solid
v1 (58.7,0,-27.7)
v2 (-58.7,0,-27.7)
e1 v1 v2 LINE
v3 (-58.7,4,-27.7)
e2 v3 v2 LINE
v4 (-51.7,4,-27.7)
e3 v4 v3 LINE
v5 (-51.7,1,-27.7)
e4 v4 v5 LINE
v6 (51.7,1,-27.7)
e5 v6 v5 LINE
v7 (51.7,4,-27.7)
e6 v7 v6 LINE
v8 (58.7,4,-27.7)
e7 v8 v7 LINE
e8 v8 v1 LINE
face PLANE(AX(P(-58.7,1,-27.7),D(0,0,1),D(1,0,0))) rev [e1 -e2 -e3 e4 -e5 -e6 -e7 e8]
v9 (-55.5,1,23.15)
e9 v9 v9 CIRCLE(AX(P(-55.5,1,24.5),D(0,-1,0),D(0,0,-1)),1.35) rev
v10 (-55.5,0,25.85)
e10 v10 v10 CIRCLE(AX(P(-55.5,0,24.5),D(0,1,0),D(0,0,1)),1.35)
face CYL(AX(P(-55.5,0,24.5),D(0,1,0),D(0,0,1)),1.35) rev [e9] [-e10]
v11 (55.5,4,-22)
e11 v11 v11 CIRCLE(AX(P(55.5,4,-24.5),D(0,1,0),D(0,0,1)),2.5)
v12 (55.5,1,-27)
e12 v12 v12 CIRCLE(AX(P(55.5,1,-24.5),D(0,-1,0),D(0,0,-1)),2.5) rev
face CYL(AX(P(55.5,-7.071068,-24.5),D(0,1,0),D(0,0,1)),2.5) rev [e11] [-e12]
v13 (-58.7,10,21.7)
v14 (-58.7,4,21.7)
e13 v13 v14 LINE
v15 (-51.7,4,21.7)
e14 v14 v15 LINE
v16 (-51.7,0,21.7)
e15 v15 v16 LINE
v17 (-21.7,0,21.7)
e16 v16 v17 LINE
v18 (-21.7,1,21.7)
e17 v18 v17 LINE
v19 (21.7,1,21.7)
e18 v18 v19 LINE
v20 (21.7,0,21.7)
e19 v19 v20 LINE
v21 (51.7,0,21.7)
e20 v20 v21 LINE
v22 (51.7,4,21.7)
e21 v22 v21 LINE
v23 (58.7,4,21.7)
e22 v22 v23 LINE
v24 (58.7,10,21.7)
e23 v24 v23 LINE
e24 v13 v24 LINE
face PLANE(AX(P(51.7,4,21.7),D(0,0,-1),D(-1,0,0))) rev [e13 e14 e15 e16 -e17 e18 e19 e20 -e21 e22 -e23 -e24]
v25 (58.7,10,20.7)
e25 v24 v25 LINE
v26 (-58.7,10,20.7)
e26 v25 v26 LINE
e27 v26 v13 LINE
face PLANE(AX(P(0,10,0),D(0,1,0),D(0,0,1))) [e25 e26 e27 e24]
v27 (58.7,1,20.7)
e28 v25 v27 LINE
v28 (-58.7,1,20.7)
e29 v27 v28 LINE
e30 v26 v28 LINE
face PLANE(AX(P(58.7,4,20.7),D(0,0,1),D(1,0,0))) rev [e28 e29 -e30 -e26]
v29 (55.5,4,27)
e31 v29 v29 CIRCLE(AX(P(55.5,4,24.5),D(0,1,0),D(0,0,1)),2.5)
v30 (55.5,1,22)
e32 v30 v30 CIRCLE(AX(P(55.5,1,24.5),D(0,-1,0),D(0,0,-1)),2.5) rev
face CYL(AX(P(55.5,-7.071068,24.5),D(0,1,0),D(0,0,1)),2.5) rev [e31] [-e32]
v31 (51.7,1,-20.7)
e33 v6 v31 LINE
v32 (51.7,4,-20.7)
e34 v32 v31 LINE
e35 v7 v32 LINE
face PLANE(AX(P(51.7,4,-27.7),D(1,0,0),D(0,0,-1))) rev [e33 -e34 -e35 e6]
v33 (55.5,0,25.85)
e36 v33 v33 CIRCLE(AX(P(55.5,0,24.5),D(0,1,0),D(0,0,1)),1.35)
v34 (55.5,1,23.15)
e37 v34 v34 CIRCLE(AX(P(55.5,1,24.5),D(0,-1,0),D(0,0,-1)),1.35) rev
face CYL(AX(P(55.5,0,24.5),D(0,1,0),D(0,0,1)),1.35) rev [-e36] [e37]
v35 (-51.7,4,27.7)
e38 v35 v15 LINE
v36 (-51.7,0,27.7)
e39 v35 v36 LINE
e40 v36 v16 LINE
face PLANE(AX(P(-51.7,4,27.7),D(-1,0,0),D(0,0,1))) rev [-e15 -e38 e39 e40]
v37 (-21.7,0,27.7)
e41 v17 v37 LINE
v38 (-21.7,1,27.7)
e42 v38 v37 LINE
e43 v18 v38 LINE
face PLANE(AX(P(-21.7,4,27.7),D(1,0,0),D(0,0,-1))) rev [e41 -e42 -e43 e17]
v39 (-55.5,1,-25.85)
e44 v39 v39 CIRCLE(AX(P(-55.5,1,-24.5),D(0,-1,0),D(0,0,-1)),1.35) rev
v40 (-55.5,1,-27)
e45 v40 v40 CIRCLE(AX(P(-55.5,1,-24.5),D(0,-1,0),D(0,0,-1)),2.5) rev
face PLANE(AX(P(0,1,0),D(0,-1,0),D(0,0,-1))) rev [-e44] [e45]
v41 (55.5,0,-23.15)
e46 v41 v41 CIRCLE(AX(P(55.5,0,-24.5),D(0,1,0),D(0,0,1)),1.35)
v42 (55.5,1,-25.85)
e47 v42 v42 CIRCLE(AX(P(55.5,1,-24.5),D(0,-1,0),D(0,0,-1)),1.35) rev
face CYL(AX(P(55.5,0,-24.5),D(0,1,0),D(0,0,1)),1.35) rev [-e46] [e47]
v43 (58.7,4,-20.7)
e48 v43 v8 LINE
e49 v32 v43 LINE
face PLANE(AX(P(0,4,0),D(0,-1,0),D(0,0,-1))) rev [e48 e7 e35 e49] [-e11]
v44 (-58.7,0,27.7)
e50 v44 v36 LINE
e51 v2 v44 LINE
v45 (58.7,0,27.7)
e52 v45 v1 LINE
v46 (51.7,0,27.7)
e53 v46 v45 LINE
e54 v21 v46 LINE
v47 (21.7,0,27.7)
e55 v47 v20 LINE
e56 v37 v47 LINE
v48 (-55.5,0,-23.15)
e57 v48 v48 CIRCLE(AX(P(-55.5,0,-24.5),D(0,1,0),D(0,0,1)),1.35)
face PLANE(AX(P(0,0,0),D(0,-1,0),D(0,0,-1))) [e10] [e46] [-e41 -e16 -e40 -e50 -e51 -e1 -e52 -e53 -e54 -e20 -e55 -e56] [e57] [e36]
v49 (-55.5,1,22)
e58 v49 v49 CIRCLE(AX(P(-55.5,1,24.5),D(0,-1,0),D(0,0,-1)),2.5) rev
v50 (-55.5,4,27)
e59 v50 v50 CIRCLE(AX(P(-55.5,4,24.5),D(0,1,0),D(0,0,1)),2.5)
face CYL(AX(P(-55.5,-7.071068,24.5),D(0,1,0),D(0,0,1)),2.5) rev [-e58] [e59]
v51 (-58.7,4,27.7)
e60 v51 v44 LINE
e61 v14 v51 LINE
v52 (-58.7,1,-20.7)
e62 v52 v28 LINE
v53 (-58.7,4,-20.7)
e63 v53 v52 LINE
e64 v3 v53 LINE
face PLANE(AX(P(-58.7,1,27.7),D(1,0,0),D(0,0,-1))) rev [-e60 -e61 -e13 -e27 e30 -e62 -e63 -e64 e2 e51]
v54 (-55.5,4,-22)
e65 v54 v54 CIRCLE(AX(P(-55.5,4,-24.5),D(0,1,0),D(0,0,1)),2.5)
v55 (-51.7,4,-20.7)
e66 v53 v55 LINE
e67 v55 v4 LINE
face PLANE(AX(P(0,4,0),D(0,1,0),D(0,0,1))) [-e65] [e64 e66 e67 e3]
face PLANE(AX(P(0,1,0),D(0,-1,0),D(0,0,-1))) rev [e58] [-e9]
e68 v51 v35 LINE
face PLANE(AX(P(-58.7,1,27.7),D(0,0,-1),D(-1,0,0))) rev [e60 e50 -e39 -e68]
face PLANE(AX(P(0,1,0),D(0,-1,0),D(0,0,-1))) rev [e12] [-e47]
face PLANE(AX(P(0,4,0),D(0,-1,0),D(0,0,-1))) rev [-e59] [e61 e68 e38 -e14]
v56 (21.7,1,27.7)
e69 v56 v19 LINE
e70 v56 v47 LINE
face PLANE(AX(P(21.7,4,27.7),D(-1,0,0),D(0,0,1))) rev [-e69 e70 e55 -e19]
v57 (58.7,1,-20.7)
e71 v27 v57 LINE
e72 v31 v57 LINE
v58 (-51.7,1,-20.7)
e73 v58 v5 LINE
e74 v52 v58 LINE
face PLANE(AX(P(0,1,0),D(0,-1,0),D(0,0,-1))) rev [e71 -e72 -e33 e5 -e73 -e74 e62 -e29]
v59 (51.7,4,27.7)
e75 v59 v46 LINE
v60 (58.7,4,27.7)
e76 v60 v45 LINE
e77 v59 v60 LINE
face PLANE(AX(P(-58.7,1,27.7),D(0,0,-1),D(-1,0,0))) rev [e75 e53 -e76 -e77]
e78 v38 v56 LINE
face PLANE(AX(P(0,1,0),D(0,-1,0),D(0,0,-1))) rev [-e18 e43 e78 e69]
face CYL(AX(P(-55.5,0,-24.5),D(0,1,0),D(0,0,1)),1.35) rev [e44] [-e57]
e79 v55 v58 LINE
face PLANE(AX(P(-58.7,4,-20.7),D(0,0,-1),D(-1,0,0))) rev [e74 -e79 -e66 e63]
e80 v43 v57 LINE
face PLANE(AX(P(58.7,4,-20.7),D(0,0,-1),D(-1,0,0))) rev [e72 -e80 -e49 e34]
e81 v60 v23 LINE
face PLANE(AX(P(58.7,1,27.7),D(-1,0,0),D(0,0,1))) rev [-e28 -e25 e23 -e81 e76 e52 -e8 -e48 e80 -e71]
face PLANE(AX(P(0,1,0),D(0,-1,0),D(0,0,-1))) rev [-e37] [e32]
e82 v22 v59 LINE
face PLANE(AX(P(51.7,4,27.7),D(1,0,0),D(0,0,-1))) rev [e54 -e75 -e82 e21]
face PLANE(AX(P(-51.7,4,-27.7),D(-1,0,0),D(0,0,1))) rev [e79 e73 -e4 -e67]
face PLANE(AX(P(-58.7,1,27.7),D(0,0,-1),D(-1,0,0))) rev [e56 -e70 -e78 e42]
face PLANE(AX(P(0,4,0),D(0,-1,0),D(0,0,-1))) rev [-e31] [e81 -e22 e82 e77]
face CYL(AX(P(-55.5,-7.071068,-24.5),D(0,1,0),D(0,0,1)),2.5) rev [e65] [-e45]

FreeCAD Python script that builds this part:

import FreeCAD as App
import Part
import Sketcher
from FreeCAD import Vector

doc = App.newDocument("Part")
body = doc.addObject("PartDesign::Body", "Body")

# Sketch on XZ plane
sketch1 = doc.addObject("Sketcher::SketchObject", "Sketch")
body.addObject(sketch1)
sketch1.AttachmentSupport = (doc.XZ_Plane, [""])
sketch1.MapMode = "FlatFace"
sketch1.addGeometry([
    Part.LineSegment(Vector(-59, -28, 0), Vector(-59, 28, 0)),
    Part.LineSegment(Vector(-59, 28, 0), Vector(59, 28, 0)),
    Part.LineSegment(Vector(59, 28, 0), Vector(59, -28, 0)),
    Part.LineSegment(Vector(59, -28, 0), Vector(-59, -28, 0)),
], False)
sketch1.addConstraint([
    Sketcher.Constraint("Coincident", 0, 2, 1, 1),
    Sketcher.Constraint("Coincident", 1, 2, 2, 1),
    Sketcher.Constraint("Coincident", 2, 2, 3, 1),
    Sketcher.Constraint("Coincident", 3, 2, 0, 1),
    Sketcher.Constraint("Vertical", 0),
    Sketcher.Constraint("Horizontal", 1),
    Sketcher.Constraint("Vertical", 2),
    Sketcher.Constraint("Horizontal", 3),
    Sketcher.Constraint("Symmetric", 0, 2, 2, 2, -1, 1),
    Sketcher.Constraint("DistanceX", 1, 1, 1, 2, 117.4),
    Sketcher.Constraint("DistanceY", 0, 1, 0, 2, 55.4),
])
pad1 = doc.addObject("PartDesign::Pad", "Pad")
body.addObject(pad1)
pad1.Profile = sketch1
pad1.Length = 1
pad1.Reversed = True

# Sketch on XZ plane
sketch2 = doc.addObject("Sketcher::SketchObject", "Sketch001")
body.addObject(sketch2)
sketch2.AttachmentSupport = (doc.XZ_Plane, [""])
sketch2.MapMode = "FlatFace"
sketch2.AttachmentOffset = App.Placement(Vector(0, 0, -1), App.Rotation())
sketch2.addGeometry([
    Part.LineSegment(Vector(52, -28, 0), Vector(52, -21, 0)),  # 0
    Part.LineSegment(Vector(52, -21, 0), Vector(59, -21, 0)),  # 1
    Part.LineSegment(Vector(59, -21, 0), Vector(59, -28, 0)),  # 2
    Part.LineSegment(Vector(59, -28, 0), Vector(52, -28, 0)),  # 3
    Part.LineSegment(Vector(-59, -28, 0), Vector(-59, -21, 0)),  # 4
    Part.LineSegment(Vector(-59, -21, 0), Vector(-52, -21, 0)),  # 5
    Part.LineSegment(Vector(-52, -21, 0), Vector(-52, -28, 0)),  # 6
    Part.LineSegment(Vector(-52, -28, 0), Vector(-59, -28, 0)),  # 7
    Part.LineSegment(Vector(52, 21, 0), Vector(52, 28, 0)),  # 8
    Part.LineSegment(Vector(52, 28, 0), Vector(59, 28, 0)),  # 9
    Part.LineSegment(Vector(59, 28, 0), Vector(59, 21, 0)),  # 10
    Part.LineSegment(Vector(59, 21, 0), Vector(52, 21, 0)),  # 11
    Part.LineSegment(Vector(-59, 21, 0), Vector(-59, 28, 0)),  # 12
    Part.LineSegment(Vector(-59, 28, 0), Vector(-52, 28, 0)),  # 13
    Part.LineSegment(Vector(-52, 28, 0), Vector(-52, 21, 0)),  # 14
    Part.LineSegment(Vector(-52, 21, 0), Vector(-59, 21, 0)),  # 15
], False)
sketch2.addConstraint([
    Sketcher.Constraint("Coincident", 0, 2, 1, 1),
    Sketcher.Constraint("Coincident", 1, 2, 2, 1),
    Sketcher.Constraint("Coincident", 2, 2, 3, 1),
    Sketcher.Constraint("Coincident", 3, 2, 0, 1),
    Sketcher.Constraint("Coincident", 4, 2, 5, 1),
    Sketcher.Constraint("Coincident", 5, 2, 6, 1),
    Sketcher.Constraint("Coincident", 6, 2, 7, 1),
    Sketcher.Constraint("Coincident", 7, 2, 4, 1),
    Sketcher.Constraint("Coincident", 8, 2, 9, 1),
    Sketcher.Constraint("Coincident", 9, 2, 10, 1),
    Sketcher.Constraint("Coincident", 10, 2, 11, 1),
    Sketcher.Constraint("Coincident", 11, 2, 8, 1),
    Sketcher.Constraint("Coincident", 12, 2, 13, 1),
    Sketcher.Constraint("Coincident", 13, 2, 14, 1),
    Sketcher.Constraint("Coincident", 14, 2, 15, 1),
    Sketcher.Constraint("Coincident", 15, 2, 12, 1),
    Sketcher.Constraint("Vertical", 0),
    Sketcher.Constraint("Horizontal", 1),
    Sketcher.Constraint("Vertical", 2),
    Sketcher.Constraint("Horizontal", 3),
    Sketcher.Constraint("Vertical", 4),
    Sketcher.Constraint("Horizontal", 5),
    Sketcher.Constraint("Vertical", 6),
    Sketcher.Constraint("Horizontal", 7),
    Sketcher.Constraint("Vertical", 8),
    Sketcher.Constraint("Horizontal", 9),
    Sketcher.Constraint("Vertical", 10),
    Sketcher.Constraint("Horizontal", 11),
    Sketcher.Constraint("Vertical", 12),
    Sketcher.Constraint("Horizontal", 13),
    Sketcher.Constraint("Vertical", 14),
    Sketcher.Constraint("Horizontal", 15),
    Sketcher.Constraint("Symmetric", 6, 2, 8, 2, -1, 1),
    Sketcher.Constraint("Symmetric", 4, 2, 10, 2, -1, 1),
    Sketcher.Constraint("Symmetric", 2, 2, 12, 2, -1, 1),
    Sketcher.Constraint("Symmetric", 0, 2, 14, 2, -1, 1),
    Sketcher.Constraint("Symmetric", 1, 2, 4, 2, -2),
    Sketcher.Constraint("Symmetric", 3, 2, 6, 2, -2),
    Sketcher.Constraint("Equal", 15, 0),
    Sketcher.Constraint("DistanceX", 1, 1, 1, 2, 7.0),
    Sketcher.Constraint("DistanceX", -1, 1, 0, 2, 51.7),
    Sketcher.Constraint("DistanceY", 0, 2, -1, 1, 20.7),
])
pad2 = doc.addObject("PartDesign::Pad", "Pad001")
body.addObject(pad2)
pad2.Profile = sketch2
pad2.Length = 3
pad2.Reversed = True

# Sketch on XZ plane
sketch3 = doc.addObject("Sketcher::SketchObject", "Sketch002")
body.addObject(sketch3)
sketch3.AttachmentSupport = (doc.XZ_Plane, [""])
sketch3.MapMode = "FlatFace"
sketch3.AttachmentOffset = App.Placement(Vector(0, 0, -4), App.Rotation())
sketch3.addGeometry([
    Part.Circle(Vector(-55.5, -24.5, 0), Vector(0, 0, 1), 1.4),
    Part.Circle(Vector(55.5, -24.5, 0), Vector(0, 0, 1), 1.4),
    Part.Circle(Vector(55.5, 24.5, 0), Vector(0, 0, 1), 1.4),
    Part.Circle(Vector(-55.5, 24.5, 0), Vector(0, 0, 1), 1.4),
], False)
sketch3.addConstraint([
    Sketcher.Constraint("Equal", 0, 1),
    Sketcher.Constraint("Equal", 1, 2),
    Sketcher.Constraint("Equal", 2, 3),
    Sketcher.Constraint("Symmetric", 0, 3, 2, 3, -1, 1),
    Sketcher.Constraint("Symmetric", 1, 3, 3, 3, -1, 1),
    Sketcher.Constraint("Symmetric", 0, 3, 1, 3, -2),
    Sketcher.Constraint("Diameter", 0, 2.7),
    Sketcher.Constraint("DistanceX", 0, 3, 1, 3, 111.0),
    Sketcher.Constraint("DistanceY", 1, 3, 2, 3, 49.0),
])
pocket1 = doc.addObject("PartDesign::Pocket", "Pocket")
body.addObject(pocket1)
pocket1.Profile = sketch3
pocket1.Type = "ThroughAll"
pocket1.Reversed = True

# Sketch on XZ plane
sketch4 = doc.addObject("Sketcher::SketchObject", "Sketch003")
body.addObject(sketch4)
sketch4.AttachmentSupport = (doc.XZ_Plane, [""])
sketch4.MapMode = "FlatFace"
sketch4.addGeometry([
    Part.LineSegment(Vector(22, 28, 0), Vector(22, 22, 0)),  # 0
    Part.LineSegment(Vector(22, 22, 0), Vector(52, 22, 0)),  # 1
    Part.LineSegment(Vector(52, 22, 0), Vector(52, 28, 0)),  # 2
    Part.LineSegment(Vector(52, 28, 0), Vector(22, 28, 0)),  # 3
    Part.LineSegment(Vector(-52, 28, 0), Vector(-52, 22, 0)),  # 4
    Part.LineSegment(Vector(-52, 22, 0), Vector(-22, 22, 0)),  # 5
    Part.LineSegment(Vector(-22, 22, 0), Vector(-22, 28, 0)),  # 6
    Part.LineSegment(Vector(-22, 28, 0), Vector(-52, 28, 0)),  # 7
], False)
sketch4.addConstraint([
    Sketcher.Constraint("Coincident", 0, 2, 1, 1),
    Sketcher.Constraint("Coincident", 1, 2, 2, 1),
    Sketcher.Constraint("Coincident", 2, 2, 3, 1),
    Sketcher.Constraint("Coincident", 3, 2, 0, 1),
    Sketcher.Constraint("Coincident", 4, 2, 5, 1),
    Sketcher.Constraint("Coincident", 5, 2, 6, 1),
    Sketcher.Constraint("Coincident", 6, 2, 7, 1),
    Sketcher.Constraint("Coincident", 7, 2, 4, 1),
    Sketcher.Constraint("Vertical", 0),
    Sketcher.Constraint("Horizontal", 1),
    Sketcher.Constraint("Vertical", 2),
    Sketcher.Constraint("Horizontal", 3),
    Sketcher.Constraint("Vertical", 4),
    Sketcher.Constraint("Horizontal", 5),
    Sketcher.Constraint("Vertical", 6),
    Sketcher.Constraint("Horizontal", 7),
    Sketcher.Constraint("Symmetric", 1, 2, 4, 2, -2),
    Sketcher.Constraint("Symmetric", 3, 2, 6, 2, -2),
    Sketcher.Constraint("DistanceX", 1, 1, 1, 2, 30.0),
    Sketcher.Constraint("DistanceY", 0, 2, 0, 1, 6.0),
    Sketcher.Constraint("DistanceX", -1, 1, 0, 2, 21.7),
    Sketcher.Constraint("DistanceY", -1, 1, 0, 2, 21.7),
])
pocket2 = doc.addObject("PartDesign::Pocket", "Pocket001")
body.addObject(pocket2)
pocket2.Profile = sketch4
pocket2.Type = "ThroughAll"

# Sketch on XZ plane
sketch5 = doc.addObject("Sketcher::SketchObject", "Sketch004")
body.addObject(sketch5)
sketch5.AttachmentSupport = (doc.XZ_Plane, [""])
sketch5.MapMode = "FlatFace"
sketch5.AttachmentOffset = App.Placement(Vector(0, 0, -4), App.Rotation())
sketch5.addGeometry([
    Part.Circle(Vector(-55.5, -24.5, 0), Vector(0, 0, 1), 2.5),
    Part.Circle(Vector(55.5, -24.5, 0), Vector(0, 0, 1), 2.5),
    Part.Circle(Vector(55.5, 24.5, 0), Vector(0, 0, 1), 2.5),
    Part.Circle(Vector(-55.5, 24.5, 0), Vector(0, 0, 1), 2.5),
], False)
sketch5.addConstraint([
    Sketcher.Constraint("Equal", 0, 1),
    Sketcher.Constraint("Equal", 1, 2),
    Sketcher.Constraint("Equal", 2, 3),
    Sketcher.Constraint("Symmetric", 0, 3, 2, 3, -1, 1),
    Sketcher.Constraint("Symmetric", 1, 3, 3, 3, -1, 1),
    Sketcher.Constraint("Symmetric", 0, 3, 1, 3, -2),
    Sketcher.Constraint("Diameter", 0, 5.0),
    Sketcher.Constraint("DistanceX", 0, 3, 1, 3, 111.0),
    Sketcher.Constraint("DistanceY", 1, 3, 2, 3, 49.0),
])
pocket3 = doc.addObject("PartDesign::Pocket", "Pocket002")
body.addObject(pocket3)
pocket3.Profile = sketch5
pocket3.Length = 3
pocket3.Reversed = True

# Sketch on XZ plane
sketch6 = doc.addObject("Sketcher::SketchObject", "Sketch005")
body.addObject(sketch6)
sketch6.AttachmentSupport = (doc.XZ_Plane, [""])
sketch6.MapMode = "FlatFace"
sketch6.AttachmentOffset = App.Placement(Vector(0, 0, -1), App.Rotation())
sketch6.addGeometry([
    Part.LineSegment(Vector(-58.7, 20.7, 0), Vector(-58.7, 21.7, 0)),
    Part.LineSegment(Vector(-58.7, 21.7, 0), Vector(58.7, 21.7, 0)),
    Part.LineSegment(Vector(58.7, 21.7, 0), Vector(58.7, 20.7, 0)),
    Part.LineSegment(Vector(58.7, 20.7, 0), Vector(-58.7, 20.7, 0)),
], False)
sketch6.addConstraint([
    Sketcher.Constraint("Coincident", 0, 2, 1, 1),
    Sketcher.Constraint("Coincident", 1, 2, 2, 1),
    Sketcher.Constraint("Coincident", 2, 2, 3, 1),
    Sketcher.Constraint("Coincident", 3, 2, 0, 1),
    Sketcher.Constraint("Vertical", 0),
    Sketcher.Constraint("Horizontal", 1),
    Sketcher.Constraint("Vertical", 2),
    Sketcher.Constraint("Horizontal", 3),
    Sketcher.Constraint("DistanceY", 0, 1, 0, 2, 1.0),
    Sketcher.Constraint("DistanceX", 1, 1, 1, 2, 117.4),
    Sketcher.Constraint("DistanceX", 0, 2, -1, 1, 58.7),
    Sketcher.Constraint("DistanceY", -1, 1, 0, 2, 21.7),
])
pad3 = doc.addObject("PartDesign::Pad", "Pad002")
body.addObject(pad3)
pad3.Profile = sketch6
pad3.Length = 9
pad3.Reversed = True

doc.recompute()
